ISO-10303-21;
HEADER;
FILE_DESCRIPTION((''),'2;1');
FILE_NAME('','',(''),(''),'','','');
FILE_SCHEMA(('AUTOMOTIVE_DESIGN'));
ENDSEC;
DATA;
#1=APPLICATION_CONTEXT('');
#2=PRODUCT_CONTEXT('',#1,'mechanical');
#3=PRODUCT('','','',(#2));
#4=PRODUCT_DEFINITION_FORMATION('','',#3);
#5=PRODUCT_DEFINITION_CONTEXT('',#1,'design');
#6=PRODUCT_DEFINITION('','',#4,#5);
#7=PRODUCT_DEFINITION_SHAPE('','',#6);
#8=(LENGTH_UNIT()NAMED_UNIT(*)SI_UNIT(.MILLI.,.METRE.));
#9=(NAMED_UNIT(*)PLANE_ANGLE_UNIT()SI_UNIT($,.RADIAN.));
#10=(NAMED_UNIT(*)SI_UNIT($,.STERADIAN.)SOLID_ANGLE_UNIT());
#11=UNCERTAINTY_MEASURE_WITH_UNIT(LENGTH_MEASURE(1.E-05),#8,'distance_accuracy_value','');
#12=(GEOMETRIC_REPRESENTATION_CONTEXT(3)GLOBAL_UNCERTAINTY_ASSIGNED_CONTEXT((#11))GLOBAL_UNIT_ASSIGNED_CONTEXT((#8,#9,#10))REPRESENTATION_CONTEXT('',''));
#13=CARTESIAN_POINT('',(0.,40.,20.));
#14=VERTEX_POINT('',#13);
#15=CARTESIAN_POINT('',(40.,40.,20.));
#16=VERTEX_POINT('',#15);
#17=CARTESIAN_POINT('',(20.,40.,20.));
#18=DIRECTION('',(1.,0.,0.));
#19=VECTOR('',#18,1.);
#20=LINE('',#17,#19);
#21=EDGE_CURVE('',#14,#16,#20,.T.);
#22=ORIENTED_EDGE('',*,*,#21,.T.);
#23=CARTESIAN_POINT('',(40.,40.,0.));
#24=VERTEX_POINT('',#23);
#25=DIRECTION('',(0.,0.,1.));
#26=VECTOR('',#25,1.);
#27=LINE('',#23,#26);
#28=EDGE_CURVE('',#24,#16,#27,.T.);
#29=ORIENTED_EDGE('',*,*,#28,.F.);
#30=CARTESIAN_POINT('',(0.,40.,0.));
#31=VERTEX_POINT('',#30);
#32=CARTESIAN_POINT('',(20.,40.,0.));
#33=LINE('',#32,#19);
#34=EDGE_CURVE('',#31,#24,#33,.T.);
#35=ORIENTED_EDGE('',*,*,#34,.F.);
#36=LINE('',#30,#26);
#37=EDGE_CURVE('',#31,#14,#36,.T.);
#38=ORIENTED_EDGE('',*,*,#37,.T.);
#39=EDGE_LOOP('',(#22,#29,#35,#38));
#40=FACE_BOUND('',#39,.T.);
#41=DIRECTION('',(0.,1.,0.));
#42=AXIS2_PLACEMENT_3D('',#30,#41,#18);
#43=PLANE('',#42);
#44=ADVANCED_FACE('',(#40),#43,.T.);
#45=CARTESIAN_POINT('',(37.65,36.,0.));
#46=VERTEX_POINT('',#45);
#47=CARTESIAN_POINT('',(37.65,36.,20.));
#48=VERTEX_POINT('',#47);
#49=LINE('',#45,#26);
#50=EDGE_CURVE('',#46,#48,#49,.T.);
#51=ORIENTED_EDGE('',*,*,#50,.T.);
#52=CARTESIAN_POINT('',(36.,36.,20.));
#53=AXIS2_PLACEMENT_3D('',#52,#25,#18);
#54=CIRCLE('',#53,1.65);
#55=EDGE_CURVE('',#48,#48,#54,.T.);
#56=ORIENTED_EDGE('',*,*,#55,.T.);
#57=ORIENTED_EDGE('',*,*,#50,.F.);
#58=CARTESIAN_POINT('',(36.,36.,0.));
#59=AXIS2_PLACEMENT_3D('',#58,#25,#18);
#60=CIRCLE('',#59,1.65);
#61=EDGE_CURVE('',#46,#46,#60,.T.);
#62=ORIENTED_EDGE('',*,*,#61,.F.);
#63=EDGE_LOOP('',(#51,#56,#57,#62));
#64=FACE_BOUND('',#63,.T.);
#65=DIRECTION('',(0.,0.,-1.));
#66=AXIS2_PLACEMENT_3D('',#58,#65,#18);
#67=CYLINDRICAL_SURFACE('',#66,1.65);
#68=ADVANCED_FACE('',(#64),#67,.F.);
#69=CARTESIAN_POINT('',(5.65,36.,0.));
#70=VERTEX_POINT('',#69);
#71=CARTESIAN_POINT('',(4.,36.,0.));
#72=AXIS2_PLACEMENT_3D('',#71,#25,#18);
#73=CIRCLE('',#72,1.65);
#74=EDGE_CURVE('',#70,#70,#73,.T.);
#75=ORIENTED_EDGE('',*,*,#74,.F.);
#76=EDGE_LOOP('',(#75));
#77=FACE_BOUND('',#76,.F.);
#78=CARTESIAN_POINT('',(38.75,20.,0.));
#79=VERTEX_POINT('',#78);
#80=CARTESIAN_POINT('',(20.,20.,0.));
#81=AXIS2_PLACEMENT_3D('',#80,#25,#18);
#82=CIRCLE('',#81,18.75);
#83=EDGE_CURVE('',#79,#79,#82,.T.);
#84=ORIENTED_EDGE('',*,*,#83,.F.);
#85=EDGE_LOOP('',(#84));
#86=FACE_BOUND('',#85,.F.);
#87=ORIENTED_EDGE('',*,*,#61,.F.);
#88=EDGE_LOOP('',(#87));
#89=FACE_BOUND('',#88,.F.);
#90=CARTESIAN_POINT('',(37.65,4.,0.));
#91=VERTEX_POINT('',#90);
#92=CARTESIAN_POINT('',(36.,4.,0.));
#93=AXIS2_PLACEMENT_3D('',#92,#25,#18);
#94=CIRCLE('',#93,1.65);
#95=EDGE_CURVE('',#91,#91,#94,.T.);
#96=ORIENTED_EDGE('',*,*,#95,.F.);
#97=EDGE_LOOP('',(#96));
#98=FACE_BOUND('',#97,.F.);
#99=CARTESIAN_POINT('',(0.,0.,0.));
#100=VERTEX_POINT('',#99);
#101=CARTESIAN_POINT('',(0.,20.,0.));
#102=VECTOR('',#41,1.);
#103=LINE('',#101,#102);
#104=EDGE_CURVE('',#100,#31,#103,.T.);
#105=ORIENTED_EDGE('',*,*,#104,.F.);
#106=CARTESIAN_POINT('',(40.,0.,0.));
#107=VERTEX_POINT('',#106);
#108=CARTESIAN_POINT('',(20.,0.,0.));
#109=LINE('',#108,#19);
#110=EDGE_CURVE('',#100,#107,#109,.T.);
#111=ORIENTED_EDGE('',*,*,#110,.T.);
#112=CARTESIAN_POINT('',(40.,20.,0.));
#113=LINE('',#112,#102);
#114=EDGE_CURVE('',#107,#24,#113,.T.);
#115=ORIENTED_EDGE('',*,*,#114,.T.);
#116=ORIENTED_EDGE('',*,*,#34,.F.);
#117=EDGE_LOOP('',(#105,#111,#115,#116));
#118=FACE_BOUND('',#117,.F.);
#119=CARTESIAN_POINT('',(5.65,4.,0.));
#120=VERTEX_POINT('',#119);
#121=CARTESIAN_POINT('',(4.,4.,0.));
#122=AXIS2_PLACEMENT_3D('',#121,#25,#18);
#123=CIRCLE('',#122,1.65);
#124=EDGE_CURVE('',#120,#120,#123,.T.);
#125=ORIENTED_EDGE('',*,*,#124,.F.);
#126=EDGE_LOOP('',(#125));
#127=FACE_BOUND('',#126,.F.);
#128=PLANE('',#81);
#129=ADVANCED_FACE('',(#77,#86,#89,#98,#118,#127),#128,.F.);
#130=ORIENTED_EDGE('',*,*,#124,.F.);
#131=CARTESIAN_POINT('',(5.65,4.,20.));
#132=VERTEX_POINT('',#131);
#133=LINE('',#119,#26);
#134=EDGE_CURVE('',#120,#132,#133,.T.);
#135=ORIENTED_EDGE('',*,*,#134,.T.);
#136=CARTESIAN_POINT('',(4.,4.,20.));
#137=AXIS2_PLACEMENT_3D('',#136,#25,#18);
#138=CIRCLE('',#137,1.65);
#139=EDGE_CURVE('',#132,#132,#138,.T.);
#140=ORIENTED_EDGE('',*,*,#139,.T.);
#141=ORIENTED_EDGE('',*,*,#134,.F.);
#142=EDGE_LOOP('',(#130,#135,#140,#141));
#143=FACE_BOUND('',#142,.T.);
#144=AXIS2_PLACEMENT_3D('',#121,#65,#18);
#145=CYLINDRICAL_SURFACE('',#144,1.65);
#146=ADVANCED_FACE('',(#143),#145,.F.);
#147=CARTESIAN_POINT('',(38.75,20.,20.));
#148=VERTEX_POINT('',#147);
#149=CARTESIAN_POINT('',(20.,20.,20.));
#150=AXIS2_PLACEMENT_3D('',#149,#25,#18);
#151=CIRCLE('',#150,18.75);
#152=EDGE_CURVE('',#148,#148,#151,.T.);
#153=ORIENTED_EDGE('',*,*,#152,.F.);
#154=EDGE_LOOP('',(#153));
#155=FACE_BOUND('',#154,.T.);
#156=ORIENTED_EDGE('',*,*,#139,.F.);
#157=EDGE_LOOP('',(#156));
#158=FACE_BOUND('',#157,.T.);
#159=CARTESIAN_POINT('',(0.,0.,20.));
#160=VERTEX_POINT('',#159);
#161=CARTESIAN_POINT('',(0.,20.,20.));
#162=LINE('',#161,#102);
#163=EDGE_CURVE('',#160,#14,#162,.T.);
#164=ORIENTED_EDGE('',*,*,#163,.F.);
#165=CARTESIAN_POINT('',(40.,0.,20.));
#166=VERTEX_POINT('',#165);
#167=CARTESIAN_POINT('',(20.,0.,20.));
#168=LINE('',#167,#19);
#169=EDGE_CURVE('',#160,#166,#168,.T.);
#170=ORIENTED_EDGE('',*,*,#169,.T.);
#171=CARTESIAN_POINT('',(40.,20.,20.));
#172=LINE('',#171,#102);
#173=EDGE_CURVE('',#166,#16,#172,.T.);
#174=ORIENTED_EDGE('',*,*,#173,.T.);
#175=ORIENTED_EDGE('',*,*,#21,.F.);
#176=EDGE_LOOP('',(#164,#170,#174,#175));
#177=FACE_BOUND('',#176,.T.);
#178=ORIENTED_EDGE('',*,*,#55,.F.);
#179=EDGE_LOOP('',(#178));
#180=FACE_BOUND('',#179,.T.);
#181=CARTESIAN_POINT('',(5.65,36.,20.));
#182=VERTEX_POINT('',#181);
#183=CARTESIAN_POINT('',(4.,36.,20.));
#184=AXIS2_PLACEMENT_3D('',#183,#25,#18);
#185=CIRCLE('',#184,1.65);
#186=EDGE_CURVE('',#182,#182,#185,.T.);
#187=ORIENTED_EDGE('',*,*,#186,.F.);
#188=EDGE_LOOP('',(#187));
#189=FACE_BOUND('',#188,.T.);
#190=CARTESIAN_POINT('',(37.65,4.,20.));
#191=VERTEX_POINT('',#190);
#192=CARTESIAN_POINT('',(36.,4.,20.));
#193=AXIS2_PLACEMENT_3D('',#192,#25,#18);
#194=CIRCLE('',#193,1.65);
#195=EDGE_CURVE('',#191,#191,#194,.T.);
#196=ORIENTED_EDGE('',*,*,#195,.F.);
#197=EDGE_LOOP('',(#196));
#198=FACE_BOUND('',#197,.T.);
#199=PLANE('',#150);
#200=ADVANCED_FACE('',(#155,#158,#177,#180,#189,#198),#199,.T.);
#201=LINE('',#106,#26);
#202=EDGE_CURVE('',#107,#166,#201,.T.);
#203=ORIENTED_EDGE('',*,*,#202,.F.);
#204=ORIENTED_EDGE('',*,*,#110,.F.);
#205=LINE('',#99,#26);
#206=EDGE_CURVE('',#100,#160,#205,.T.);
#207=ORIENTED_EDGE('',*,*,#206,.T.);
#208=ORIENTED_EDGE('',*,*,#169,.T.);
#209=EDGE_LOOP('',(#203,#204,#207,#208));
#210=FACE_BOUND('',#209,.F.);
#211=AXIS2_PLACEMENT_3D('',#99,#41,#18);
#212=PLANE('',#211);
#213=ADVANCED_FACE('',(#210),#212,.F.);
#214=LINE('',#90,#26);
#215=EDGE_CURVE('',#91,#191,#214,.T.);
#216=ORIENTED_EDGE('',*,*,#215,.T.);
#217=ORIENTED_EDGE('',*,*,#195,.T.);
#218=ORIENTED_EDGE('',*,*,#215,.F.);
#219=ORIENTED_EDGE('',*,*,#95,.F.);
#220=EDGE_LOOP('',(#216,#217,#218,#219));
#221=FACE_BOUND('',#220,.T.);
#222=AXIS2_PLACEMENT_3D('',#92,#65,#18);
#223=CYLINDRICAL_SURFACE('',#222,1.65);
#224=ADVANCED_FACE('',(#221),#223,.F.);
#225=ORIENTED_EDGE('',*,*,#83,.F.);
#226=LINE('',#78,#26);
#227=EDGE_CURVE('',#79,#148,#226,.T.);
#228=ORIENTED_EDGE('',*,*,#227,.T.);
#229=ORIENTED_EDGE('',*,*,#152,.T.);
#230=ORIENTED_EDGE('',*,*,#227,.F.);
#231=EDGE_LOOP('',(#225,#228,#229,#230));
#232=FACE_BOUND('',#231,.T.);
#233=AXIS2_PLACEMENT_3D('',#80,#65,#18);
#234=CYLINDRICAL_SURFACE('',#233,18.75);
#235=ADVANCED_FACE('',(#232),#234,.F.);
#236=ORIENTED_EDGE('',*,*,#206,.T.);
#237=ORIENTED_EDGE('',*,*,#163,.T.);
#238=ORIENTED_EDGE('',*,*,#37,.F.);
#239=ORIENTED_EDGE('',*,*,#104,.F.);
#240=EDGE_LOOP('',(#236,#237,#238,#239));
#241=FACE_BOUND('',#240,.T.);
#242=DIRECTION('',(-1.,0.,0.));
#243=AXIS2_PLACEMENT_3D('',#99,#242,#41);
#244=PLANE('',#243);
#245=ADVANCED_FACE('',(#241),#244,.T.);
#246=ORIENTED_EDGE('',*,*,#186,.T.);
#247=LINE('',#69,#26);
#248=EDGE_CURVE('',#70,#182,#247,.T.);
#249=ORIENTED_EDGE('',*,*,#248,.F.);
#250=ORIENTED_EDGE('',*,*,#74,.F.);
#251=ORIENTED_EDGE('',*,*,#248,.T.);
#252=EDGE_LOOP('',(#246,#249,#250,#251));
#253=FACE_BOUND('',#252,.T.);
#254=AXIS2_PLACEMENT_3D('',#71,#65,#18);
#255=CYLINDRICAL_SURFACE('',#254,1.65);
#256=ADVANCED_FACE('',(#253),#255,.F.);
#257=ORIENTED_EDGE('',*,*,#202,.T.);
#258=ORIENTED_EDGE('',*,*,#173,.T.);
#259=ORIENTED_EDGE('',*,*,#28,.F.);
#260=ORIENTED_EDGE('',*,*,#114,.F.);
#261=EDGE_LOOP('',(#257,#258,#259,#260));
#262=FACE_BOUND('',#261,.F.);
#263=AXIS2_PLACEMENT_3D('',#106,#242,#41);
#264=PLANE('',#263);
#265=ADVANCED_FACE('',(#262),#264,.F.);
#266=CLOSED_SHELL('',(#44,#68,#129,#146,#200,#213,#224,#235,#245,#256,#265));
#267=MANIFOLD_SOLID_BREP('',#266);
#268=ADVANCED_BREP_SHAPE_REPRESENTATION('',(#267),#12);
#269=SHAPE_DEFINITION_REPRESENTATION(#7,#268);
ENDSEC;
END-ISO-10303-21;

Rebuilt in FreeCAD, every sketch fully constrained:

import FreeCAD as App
import Part
import Sketcher
from FreeCAD import Vector
Q = App.Units.Quantity


def add_polygon(sketch, points):
    """Adds a closed chain of lines whose ends are joined by coincident constraints."""
    first, n = sketch.GeometryCount, len(points)
    for a, b in zip(points, points[1:] + points[:1]):
        sketch.addGeometry(Part.LineSegment(App.Vector(*a, 0), App.Vector(*b, 0)), False)
    for i in range(n):
        sketch.addConstraint(Sketcher.Constraint("Coincident", first + i, 2, first + (i + 1) % n, 1))

doc = App.newDocument("Part")
params = doc.addObject("Spreadsheet::Sheet", "Params")
for row, (alias, value) in enumerate([
    ("sketch1_diameter", "3.3 mm"),
    ("sketch1_diameter2", "37.5 mm"),
    ("sketch1_width", "40 mm"),
    ("pad1_length", "20 mm"),
], start=1):
    params.set(f"A{row}", alias)
    params.set(f"B{row}", "=" + value)
    params.setAlias(f"B{row}", alias)

body = doc.addObject("PartDesign::Body", "Body")

# Sketch on XY plane
sketch1 = doc.addObject("Sketcher::SketchObject", "Sketch")
body.addObject(sketch1)
sketch1.AttachmentSupport = (doc.XY_Plane, [""])
sketch1.MapMode = "FlatFace"
add_polygon(sketch1, [(0, 40), (0, 0), (40, 0), (40, 40)])  # lines 0-3
sketch1.addGeometry(Part.Circle(Vector(4, 4, 0), Vector(0, 0, 1), 1.6), False)  # 4
sketch1.addGeometry(Part.Circle(Vector(36, 4, 0), Vector(0, 0, 1), 1.6), False)  # 5
sketch1.addGeometry(Part.Circle(Vector(4, 36, 0), Vector(0, 0, 1), 1.6), False)  # 6
sketch1.addGeometry(Part.Circle(Vector(20, 20, 0), Vector(0, 0, 1), 18.8), False)  # 7
sketch1.addGeometry(Part.Circle(Vector(36, 36, 0), Vector(0, 0, 1), 1.6), False)  # 8
sketch1.addConstraint(Sketcher.Constraint("Vertical", 0))
sketch1.addConstraint(Sketcher.Constraint("Horizontal", 1))
sketch1.addConstraint(Sketcher.Constraint("Vertical", 2))
sketch1.addConstraint(Sketcher.Constraint("Horizontal", 3))
sketch1.addConstraint(Sketcher.Constraint("Coincident", 0, 2, -1, 1))
sketch1.addConstraint(Sketcher.Constraint("Equal", 4, 5))
sketch1.addConstraint(Sketcher.Constraint("Equal", 5, 6))
sketch1.addConstraint(Sketcher.Constraint("Equal", 6, 8))
sketch1.addConstraint(Sketcher.Constraint("Horizontal", 4, 3, 5, 3))
sketch1.addConstraint(Sketcher.Constraint("Horizontal", 6, 3, 8, 3))
sketch1.addConstraint(Sketcher.Constraint("Vertical", 4, 3, 6, 3))
sketch1.addConstraint(Sketcher.Constraint("Vertical", 5, 3, 8, 3))
sketch1.addConstraint(Sketcher.Constraint("Equal", 3, 0))
sketch1.addConstraint(Sketcher.Constraint("Diameter", 4, Q("3.3 mm")))
sketch1.addConstraint(Sketcher.Constraint("Diameter", 7, Q("37.5 mm")))
sketch1.addConstraint(Sketcher.Constraint("DistanceX", 1, 1, 1, 2, Q("40 mm")))
sketch1.addConstraint(Sketcher.Constraint("DistanceX", -1, 1, 4, 3, Q("4 mm")))
sketch1.addConstraint(Sketcher.Constraint("DistanceY", -1, 1, 4, 3, Q("4 mm")))
sketch1.addConstraint(Sketcher.Constraint("DistanceX", -1, 1, 5, 3, Q("36 mm")))
sketch1.addConstraint(Sketcher.Constraint("DistanceY", -1, 1, 6, 3, Q("36 mm")))
sketch1.addConstraint(Sketcher.Constraint("DistanceX", -1, 1, 7, 3, Q("20 mm")))
sketch1.addConstraint(Sketcher.Constraint("DistanceY", -1, 1, 7, 3, Q("20 mm")))
sketch1.setExpression("Constraints[17]", "Params.sketch1_diameter")
sketch1.setExpression("Constraints[18]", "Params.sketch1_diameter2")
sketch1.setExpression("Constraints[19]", "Params.sketch1_width")
pad1 = doc.addObject("PartDesign::Pad", "Pad")
body.addObject(pad1)
pad1.Profile = sketch1
pad1.setExpression("Length", "Params.pad1_length")

doc.recompute()
